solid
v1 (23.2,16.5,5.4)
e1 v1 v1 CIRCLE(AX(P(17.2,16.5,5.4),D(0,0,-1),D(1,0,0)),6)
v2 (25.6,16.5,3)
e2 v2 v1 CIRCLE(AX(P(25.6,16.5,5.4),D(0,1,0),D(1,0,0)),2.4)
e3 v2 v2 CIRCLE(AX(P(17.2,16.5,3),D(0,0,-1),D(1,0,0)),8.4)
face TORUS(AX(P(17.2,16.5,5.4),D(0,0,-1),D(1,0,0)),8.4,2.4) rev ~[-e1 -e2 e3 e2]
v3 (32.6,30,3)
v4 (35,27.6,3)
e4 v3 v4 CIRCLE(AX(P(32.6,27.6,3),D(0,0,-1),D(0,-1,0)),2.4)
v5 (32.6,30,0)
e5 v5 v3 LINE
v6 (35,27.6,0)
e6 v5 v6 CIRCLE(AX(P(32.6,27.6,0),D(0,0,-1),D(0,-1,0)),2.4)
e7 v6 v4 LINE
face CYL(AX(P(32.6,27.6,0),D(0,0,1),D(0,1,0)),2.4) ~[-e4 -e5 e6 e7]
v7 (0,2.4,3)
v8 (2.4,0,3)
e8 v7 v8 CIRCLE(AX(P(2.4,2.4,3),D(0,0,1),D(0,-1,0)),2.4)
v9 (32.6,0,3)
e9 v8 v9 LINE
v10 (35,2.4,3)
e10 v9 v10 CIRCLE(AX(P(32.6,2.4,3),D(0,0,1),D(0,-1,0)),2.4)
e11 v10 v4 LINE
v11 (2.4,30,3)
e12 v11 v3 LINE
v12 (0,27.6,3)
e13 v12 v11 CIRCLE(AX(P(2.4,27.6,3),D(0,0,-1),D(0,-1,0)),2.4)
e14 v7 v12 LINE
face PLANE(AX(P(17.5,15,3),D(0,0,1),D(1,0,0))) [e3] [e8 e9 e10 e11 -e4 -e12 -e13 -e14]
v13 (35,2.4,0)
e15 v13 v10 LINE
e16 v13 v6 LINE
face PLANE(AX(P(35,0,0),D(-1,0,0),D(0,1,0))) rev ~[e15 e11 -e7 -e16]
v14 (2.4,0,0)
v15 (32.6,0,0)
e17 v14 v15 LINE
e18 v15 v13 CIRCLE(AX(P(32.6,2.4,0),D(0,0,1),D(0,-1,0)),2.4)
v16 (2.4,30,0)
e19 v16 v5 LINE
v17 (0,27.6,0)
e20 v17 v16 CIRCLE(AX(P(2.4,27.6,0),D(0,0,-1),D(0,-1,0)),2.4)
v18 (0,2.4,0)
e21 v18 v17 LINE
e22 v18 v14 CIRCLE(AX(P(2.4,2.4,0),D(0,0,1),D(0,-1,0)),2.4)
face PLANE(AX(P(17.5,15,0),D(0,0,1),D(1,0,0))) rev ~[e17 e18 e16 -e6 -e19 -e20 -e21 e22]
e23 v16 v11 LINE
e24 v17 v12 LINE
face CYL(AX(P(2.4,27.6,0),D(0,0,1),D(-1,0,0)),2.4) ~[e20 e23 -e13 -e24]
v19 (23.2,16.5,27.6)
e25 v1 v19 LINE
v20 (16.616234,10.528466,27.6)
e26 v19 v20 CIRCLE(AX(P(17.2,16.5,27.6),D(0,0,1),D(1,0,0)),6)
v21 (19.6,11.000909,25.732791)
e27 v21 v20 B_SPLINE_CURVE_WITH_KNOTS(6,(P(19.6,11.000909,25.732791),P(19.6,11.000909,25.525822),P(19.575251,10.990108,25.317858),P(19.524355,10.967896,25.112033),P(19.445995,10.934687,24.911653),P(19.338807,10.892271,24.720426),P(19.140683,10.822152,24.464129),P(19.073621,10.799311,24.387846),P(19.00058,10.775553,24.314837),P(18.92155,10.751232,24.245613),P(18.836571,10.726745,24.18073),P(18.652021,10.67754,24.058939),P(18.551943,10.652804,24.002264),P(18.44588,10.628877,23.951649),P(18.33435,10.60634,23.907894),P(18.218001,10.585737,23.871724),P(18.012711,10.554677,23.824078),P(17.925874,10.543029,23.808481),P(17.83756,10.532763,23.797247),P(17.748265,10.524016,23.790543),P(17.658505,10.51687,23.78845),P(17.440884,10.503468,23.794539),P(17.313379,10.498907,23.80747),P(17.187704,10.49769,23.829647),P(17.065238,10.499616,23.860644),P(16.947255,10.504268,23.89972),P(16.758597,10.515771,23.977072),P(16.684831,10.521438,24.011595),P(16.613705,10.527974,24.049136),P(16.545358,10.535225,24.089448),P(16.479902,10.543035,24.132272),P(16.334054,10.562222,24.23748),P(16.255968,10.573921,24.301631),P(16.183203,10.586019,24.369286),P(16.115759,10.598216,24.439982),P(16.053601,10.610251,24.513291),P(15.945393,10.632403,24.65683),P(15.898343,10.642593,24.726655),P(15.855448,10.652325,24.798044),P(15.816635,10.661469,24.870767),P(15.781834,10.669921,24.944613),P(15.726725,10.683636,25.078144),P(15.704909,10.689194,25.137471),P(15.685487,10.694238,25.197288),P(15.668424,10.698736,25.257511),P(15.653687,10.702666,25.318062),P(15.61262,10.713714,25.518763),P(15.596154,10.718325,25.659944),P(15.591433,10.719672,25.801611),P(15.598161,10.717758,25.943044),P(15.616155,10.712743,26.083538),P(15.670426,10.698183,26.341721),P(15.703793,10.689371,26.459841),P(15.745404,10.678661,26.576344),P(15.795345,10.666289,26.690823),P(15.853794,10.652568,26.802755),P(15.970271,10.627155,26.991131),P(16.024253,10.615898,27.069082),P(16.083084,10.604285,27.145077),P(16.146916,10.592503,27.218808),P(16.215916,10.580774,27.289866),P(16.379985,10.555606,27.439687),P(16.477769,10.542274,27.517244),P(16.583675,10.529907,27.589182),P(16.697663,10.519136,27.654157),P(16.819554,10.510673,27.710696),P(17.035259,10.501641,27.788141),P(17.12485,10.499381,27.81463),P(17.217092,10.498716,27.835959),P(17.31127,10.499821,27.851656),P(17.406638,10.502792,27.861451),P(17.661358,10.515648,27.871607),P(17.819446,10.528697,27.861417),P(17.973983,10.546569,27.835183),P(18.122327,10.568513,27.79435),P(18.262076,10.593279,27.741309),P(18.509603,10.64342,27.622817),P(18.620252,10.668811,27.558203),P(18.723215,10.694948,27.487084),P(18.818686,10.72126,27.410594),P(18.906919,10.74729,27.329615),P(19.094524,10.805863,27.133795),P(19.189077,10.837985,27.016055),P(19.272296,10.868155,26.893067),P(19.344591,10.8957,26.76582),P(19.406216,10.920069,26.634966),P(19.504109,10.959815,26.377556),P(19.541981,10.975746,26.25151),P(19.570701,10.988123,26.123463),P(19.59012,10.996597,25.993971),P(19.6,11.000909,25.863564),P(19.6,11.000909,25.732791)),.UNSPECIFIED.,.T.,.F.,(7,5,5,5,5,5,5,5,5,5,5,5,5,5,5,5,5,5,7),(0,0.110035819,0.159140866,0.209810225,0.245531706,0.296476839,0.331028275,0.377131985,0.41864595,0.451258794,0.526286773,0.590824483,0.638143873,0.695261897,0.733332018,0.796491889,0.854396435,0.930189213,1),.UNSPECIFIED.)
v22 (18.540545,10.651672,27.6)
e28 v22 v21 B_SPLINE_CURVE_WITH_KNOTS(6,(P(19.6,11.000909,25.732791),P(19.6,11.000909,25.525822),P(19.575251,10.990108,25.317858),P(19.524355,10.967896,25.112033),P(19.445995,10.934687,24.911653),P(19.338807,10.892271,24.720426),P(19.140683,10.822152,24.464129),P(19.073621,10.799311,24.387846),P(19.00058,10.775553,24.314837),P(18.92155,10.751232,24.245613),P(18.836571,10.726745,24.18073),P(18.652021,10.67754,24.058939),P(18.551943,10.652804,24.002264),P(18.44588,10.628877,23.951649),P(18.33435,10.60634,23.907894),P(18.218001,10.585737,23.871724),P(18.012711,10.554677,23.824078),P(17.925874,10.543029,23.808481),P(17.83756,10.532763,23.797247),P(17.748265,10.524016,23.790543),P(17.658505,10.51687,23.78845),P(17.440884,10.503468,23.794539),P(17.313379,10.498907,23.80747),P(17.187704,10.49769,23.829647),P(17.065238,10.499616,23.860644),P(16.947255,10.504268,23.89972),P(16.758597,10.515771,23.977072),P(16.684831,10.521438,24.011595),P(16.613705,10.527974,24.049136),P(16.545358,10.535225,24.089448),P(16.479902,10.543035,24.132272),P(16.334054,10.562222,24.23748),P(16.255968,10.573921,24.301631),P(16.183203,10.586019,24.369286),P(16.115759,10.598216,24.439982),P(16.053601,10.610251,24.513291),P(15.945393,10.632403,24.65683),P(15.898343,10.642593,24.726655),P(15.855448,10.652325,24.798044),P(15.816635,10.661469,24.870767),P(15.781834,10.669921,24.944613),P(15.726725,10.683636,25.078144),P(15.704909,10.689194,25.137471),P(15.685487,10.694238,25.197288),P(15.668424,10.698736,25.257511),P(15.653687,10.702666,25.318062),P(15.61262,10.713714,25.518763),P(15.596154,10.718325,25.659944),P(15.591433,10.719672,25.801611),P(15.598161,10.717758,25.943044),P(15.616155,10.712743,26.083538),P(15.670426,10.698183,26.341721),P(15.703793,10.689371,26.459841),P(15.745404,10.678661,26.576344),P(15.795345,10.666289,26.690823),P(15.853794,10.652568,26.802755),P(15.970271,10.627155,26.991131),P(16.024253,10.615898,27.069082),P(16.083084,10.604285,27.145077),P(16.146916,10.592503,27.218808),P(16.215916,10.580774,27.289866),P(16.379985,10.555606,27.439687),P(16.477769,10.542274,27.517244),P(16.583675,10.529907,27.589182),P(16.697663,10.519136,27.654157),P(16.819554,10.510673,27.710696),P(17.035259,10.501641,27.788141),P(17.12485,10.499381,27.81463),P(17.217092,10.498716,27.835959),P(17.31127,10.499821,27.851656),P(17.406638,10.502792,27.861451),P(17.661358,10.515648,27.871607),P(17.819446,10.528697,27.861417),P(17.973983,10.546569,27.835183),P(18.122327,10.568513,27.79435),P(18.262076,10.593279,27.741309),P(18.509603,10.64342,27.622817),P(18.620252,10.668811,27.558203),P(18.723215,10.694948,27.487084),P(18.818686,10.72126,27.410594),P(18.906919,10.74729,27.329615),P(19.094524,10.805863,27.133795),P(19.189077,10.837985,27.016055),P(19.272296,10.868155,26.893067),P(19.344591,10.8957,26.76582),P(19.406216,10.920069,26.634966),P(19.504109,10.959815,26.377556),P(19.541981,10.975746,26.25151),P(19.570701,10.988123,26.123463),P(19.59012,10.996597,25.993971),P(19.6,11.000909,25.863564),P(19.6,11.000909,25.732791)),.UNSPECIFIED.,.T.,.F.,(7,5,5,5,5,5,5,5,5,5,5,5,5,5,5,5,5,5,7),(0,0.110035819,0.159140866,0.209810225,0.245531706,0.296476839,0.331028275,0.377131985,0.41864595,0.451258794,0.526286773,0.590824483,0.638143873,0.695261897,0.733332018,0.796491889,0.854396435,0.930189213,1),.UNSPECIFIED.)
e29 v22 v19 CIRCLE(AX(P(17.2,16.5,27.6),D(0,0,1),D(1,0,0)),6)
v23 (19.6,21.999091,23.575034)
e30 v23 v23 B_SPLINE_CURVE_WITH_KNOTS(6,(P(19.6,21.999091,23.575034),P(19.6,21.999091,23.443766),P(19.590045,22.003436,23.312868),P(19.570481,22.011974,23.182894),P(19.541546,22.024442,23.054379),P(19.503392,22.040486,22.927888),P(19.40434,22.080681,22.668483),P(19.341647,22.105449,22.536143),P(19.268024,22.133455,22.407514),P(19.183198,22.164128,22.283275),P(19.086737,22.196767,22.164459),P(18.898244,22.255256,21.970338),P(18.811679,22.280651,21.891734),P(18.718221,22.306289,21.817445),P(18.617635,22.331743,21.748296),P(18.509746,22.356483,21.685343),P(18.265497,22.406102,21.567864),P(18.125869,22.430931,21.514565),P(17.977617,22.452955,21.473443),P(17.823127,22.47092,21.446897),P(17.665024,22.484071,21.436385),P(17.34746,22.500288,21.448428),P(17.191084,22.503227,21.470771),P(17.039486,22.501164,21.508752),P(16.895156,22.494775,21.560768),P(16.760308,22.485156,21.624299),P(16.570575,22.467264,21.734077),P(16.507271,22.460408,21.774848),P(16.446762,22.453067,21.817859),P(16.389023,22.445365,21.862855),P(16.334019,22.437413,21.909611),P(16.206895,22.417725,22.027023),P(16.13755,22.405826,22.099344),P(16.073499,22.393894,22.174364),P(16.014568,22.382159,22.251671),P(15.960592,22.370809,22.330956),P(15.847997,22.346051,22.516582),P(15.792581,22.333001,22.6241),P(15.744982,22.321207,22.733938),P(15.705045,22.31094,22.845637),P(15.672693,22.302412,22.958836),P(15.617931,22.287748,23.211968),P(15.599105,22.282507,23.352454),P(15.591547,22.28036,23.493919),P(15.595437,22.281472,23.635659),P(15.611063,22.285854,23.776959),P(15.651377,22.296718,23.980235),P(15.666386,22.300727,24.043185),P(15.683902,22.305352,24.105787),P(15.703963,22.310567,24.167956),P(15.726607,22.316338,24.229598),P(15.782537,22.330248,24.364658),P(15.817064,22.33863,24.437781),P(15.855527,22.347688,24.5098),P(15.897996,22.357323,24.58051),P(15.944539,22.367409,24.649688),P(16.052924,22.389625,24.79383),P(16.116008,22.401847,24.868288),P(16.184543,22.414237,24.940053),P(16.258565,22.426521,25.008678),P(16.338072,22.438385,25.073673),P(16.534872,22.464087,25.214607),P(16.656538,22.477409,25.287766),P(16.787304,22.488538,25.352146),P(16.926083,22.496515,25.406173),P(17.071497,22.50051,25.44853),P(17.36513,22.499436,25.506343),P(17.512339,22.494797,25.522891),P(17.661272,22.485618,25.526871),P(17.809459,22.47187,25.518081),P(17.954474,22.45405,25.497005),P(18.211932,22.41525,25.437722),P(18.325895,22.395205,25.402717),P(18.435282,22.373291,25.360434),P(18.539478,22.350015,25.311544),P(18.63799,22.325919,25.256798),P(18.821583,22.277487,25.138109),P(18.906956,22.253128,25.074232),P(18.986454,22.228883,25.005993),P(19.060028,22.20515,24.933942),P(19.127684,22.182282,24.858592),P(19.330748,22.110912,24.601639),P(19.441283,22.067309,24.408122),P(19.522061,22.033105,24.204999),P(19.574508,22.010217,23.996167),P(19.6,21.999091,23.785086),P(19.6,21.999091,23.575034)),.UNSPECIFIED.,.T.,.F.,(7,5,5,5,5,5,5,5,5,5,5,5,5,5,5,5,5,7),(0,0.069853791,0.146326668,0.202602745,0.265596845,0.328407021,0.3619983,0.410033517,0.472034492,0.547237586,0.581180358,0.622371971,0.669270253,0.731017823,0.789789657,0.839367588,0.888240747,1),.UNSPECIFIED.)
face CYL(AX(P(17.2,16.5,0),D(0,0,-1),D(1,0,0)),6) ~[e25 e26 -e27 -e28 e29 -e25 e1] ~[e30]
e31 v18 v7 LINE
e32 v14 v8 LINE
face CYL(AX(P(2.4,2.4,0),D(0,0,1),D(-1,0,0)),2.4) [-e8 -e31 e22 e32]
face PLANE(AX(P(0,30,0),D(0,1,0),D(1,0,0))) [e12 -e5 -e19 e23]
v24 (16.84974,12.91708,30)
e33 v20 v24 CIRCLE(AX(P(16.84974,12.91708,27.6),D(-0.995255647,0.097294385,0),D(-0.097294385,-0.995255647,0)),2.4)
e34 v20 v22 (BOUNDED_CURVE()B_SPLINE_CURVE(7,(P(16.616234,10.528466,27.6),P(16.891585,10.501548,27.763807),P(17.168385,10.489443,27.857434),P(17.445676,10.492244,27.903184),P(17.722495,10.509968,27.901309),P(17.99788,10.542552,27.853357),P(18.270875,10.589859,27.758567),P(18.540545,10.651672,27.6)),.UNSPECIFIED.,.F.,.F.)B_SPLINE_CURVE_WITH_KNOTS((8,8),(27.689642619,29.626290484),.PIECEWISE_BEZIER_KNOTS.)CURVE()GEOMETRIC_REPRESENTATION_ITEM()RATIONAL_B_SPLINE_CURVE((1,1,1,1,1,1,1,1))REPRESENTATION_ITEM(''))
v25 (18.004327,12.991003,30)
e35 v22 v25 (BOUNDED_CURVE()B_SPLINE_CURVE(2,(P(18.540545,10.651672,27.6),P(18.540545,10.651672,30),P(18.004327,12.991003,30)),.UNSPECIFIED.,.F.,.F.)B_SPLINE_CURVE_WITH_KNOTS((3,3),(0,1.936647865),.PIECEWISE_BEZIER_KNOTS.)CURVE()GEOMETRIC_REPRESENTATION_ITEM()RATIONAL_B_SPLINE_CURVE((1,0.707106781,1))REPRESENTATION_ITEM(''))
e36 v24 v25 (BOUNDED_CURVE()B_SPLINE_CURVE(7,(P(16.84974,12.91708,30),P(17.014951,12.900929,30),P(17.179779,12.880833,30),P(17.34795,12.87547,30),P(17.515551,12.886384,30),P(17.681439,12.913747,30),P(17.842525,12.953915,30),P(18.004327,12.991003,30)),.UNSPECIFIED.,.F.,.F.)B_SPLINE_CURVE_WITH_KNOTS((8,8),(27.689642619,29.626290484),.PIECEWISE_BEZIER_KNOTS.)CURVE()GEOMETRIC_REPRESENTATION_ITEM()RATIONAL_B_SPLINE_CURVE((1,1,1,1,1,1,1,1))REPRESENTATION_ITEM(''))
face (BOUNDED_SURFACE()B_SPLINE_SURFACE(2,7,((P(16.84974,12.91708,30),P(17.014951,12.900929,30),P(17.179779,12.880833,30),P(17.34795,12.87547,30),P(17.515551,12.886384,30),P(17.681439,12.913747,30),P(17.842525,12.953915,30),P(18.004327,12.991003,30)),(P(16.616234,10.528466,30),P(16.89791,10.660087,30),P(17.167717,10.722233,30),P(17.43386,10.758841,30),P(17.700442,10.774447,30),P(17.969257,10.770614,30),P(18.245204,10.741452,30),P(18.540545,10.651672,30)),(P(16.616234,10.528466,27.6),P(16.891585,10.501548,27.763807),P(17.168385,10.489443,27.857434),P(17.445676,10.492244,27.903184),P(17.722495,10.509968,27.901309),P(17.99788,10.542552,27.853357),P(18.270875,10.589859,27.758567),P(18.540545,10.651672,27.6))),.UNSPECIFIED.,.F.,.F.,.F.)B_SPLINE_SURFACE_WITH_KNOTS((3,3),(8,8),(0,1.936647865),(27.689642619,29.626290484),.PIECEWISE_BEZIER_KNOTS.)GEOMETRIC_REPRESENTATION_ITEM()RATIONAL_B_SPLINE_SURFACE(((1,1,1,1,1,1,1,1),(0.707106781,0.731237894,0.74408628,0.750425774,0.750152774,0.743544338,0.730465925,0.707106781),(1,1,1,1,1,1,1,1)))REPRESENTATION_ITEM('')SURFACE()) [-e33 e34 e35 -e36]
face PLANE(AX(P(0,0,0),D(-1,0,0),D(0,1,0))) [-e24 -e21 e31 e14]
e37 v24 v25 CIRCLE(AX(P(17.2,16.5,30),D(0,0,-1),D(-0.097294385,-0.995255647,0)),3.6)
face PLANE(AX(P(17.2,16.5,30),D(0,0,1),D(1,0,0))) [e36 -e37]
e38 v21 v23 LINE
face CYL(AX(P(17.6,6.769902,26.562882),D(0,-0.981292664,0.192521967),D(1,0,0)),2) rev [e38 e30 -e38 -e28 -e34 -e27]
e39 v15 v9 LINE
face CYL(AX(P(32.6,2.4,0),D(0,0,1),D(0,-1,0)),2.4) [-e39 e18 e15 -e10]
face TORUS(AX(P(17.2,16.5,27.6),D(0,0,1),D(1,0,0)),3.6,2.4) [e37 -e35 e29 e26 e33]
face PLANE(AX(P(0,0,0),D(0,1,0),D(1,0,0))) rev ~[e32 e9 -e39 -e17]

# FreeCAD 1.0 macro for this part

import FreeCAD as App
import Part
import Sketcher
from FreeCAD import Vector


def edges_at(feature, points):
    """Names of the edges that pass closest to the given points."""
    edges = feature.Shape.Edges
    near = lambda p: min(range(len(edges)), key=lambda i: edges[i].distToShape(Part.Vertex(*p))[0])
    return sorted({f"Edge{near(p) + 1}" for p in points})

doc = App.newDocument("Part")
body = doc.addObject("PartDesign::Body", "Body")

# Sketch on XY plane
sketch1 = body.newObject("Sketcher::SketchObject", "Sketch")
sketch1.AttachmentSupport = (doc.getObject("XY_Plane"), [""])
sketch1.MapMode = "FlatFace"
sketch1.addGeometry(Part.Circle(Vector(0, 0, 0), Vector(0, 0, 1), 2), False)
sketch1.addConstraint([
    Sketcher.Constraint("Coincident", 0, 3, -1, 1),
    Sketcher.Constraint("Diameter", 0, 4.0),
])
pad1 = body.newObject("PartDesign::Pad", "Pad")
pad1.Profile = sketch1
pad1.Length = 25
body2 = doc.addObject("PartDesign::Body", "Body001")
doc.recompute()

body.Placement = App.Placement(Vector(17.6, 6.769902, 26.562882), App.Rotation(Vector(-1, 0, 0), 101.1))
boolean = body2.newObject("PartDesign::Boolean", "Boolean")
boolean.Type = "Fuse"
boolean.addObjects([body])
body3 = doc.addObject("PartDesign::Body", "Body002")

# Sketch on XY plane
sketch2 = body3.newObject("Sketcher::SketchObject", "Sketch001")
sketch2.AttachmentSupport = (doc.getObject("XY_Plane002"), [""])
sketch2.MapMode = "FlatFace"
sketch2.addGeometry([
    Part.LineSegment(Vector(0, 30, 0), Vector(0, 0, 0)),
    Part.LineSegment(Vector(0, 0, 0), Vector(35, 0, 0)),
    Part.LineSegment(Vector(35, 0, 0), Vector(35, 30, 0)),
    Part.LineSegment(Vector(35, 30, 0), Vector(0, 30, 0)),
], False)
sketch2.addConstraint([
    Sketcher.Constraint("Coincident", 0, 2, 1, 1),
    Sketcher.Constraint("Coincident", 1, 2, 2, 1),
    Sketcher.Constraint("Coincident", 2, 2, 3, 1),
    Sketcher.Constraint("Coincident", 3, 2, 0, 1),
    Sketcher.Constraint("Vertical", 0),
    Sketcher.Constraint("Horizontal", 1),
    Sketcher.Constraint("Vertical", 2),
    Sketcher.Constraint("Horizontal", 3),
    Sketcher.Constraint("Coincident", 0, 2, -1, 1),
    Sketcher.Constraint("DistanceX", 1, 1, 1, 2, 35.0),
    Sketcher.Constraint("DistanceY", 0, 2, 0, 1, 30.0),
])
pad2 = body3.newObject("PartDesign::Pad", "Pad001")
pad2.Profile = sketch2
pad2.Length = 3
body4 = doc.addObject("PartDesign::Body", "Body003")

# Sketch on XY plane
sketch3 = body4.newObject("Sketcher::SketchObject", "Sketch002")
sketch3.AttachmentSupport = (doc.getObject("XY_Plane003"), [""])
sketch3.MapMode = "FlatFace"
sketch3.addGeometry(Part.Circle(Vector(17.2, 16.5, 0), Vector(0, 0, 1), 6), False)
sketch3.addConstraint([
    Sketcher.Constraint("Diameter", 0, 12.0),
    Sketcher.Constraint("DistanceX", -1, 1, 0, 3, 17.2),
    Sketcher.Constraint("DistanceY", -1, 1, 0, 3, 16.5),
])
pad3 = body4.newObject("PartDesign::Pad", "Pad002")
pad3.Profile = sketch3
pad3.Length = 30
doc.recompute()

boolean2 = body4.newObject("PartDesign::Boolean", "Boolean001")
boolean2.Type = "Fuse"
boolean2.addObjects([body3])
doc.recompute()

boolean3 = body4.newObject("PartDesign::Boolean", "Boolean002")
boolean3.Type = "Cut"
boolean3.addObjects([body2])
doc.recompute()

fillet = body4.newObject("PartDesign::Fillet", "Fillet")
fillet.Base = (boolean3, edges_at(boolean3, [(11.2, 16.5, 3)]))
fillet.Radius = 2.4
doc.recompute()

fillet2 = body4.newObject("PartDesign::Fillet", "Fillet001")
fillet2.Base = (fillet, edges_at(fillet, [
    (11.2, 16.5, 30),
    (0, 0, 1.5),
    (0, 30, 1.5),
    (35, 30, 1.5),
    (35, 0, 1.5),
]))
fillet2.Radius = 2.4

doc.recompute()
